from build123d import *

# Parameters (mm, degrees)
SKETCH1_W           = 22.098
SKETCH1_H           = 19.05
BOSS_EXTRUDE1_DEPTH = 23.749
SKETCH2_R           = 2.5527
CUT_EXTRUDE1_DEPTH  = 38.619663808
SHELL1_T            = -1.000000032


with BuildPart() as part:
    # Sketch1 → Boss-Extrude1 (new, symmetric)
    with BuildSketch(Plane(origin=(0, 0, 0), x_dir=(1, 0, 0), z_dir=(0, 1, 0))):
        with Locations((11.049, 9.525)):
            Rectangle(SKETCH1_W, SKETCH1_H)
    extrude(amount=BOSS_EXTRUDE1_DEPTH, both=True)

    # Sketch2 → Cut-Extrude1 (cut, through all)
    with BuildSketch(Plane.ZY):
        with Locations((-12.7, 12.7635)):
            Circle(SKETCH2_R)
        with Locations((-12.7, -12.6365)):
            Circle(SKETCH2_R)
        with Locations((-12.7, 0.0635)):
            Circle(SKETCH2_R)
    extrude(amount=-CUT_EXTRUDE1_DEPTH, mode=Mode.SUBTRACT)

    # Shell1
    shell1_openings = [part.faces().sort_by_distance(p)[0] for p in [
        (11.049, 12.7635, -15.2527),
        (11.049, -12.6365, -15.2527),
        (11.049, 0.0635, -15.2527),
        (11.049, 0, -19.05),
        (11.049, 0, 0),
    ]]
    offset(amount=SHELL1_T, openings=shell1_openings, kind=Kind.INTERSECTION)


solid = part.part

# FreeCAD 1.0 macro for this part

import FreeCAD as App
import Part
import Sketcher
from FreeCAD import Vector
Q = App.Units.Quantity


def faces_at(feature, points):
    """Names of the faces that lie closest to the given points."""
    faces = feature.Shape.Faces
    near = lambda p: min(range(len(faces)), key=lambda i: faces[i].distToShape(Part.Vertex(*p))[0])
    return sorted({f"Face{near(p) + 1}" for p in points})


def add_polygon(sketch, points):
    """Adds a closed chain of lines whose ends are joined by coincident constraints."""
    first, n = sketch.GeometryCount, len(points)
    for a, b in zip(points, points[1:] + points[:1]):
        sketch.addGeometry(Part.LineSegment(App.Vector(*a, 0), App.Vector(*b, 0)), False)
    for i in range(n):
        sketch.addConstraint(Sketcher.Constraint("Coincident", first + i, 2, first + (i + 1) % n, 1))

doc = App.newDocument("Part")
body = doc.addObject("PartDesign::Body", "Body")

# Sketch on XZ plane
sketch1 = body.newObject("Sketcher::SketchObject", "Sketch")
sketch1.AttachmentSupport = (doc.getObject("XZ_Plane"), [""])
sketch1.MapMode = "FlatFace"
add_polygon(sketch1, [(0, -19.05), (0, 0), (22.098, 0), (22.098, -19.05)])  # lines 0-3
sketch1.addConstraint([
    Sketcher.Constraint("Vertical", 0),
    Sketcher.Constraint("Horizontal", 1),
    Sketcher.Constraint("Vertical", 2),
    Sketcher.Constraint("Horizontal", 3),
    Sketcher.Constraint("Coincident", 0, 2, -1, 1),
    Sketcher.Constraint("DistanceX", 1, 1, 1, 2, Q("0.87 in")),
    Sketcher.Constraint("DistanceY", 0, 1, 0, 2, Q("0.75 in")),
])
pad1 = body.newObject("PartDesign::Pad", "Pad")
pad1.Profile = sketch1
pad1.Length = Q("1.87 in")
pad1.Midplane = True

# Sketch on YZ plane
sketch2 = body.newObject("Sketcher::SketchObject", "Sketch001")
sketch2.AttachmentSupport = (doc.getObject("YZ_Plane"), [""])
sketch2.MapMode = "FlatFace"
sketch2.addGeometry([
    Part.Circle(Vector(12.7635, -12.7, 0), Vector(0, 0, 1), 2.5527),
    Part.Circle(Vector(-12.6365, -12.7, 0), Vector(0, 0, 1), 2.5527),
    Part.Circle(Vector(0.0635, -12.7, 0), Vector(0, 0, 1), 2.5527),
], False)
sketch2.addConstraint([
    Sketcher.Constraint("Equal", 0, 1),
    Sketcher.Constraint("Equal", 1, 2),
    Sketcher.Constraint("Horizontal", 0, 3, 1, 3),
    Sketcher.Constraint("Horizontal", 1, 3, 2, 3),
    Sketcher.Constraint("Diameter", 0, Q("0.201 in")),
    Sketcher.Constraint("DistanceX", 1, 3, 0, 3, Q("1 in")),
    Sketcher.Constraint("DistanceY", 0, 3, -1, 1, Q("0.5 in")),
    Sketcher.Constraint("DistanceX", 1, 3, 2, 3, Q("0.5 in")),
    Sketcher.Constraint("DistanceX", -1, 1, 0, 3, Q("0.5025 in")),
])
pocket1 = body.newObject("PartDesign::Pocket", "Pocket")
pocket1.Profile = sketch2
pocket1.Type = "ThroughAll"
pocket1.Reversed = True
doc.recompute()

thickness = body.newObject("PartDesign::Thickness", "Thickness")
thickness.Base = (pocket1, faces_at(pocket1, [
    (11.049, 12.764, -15.253),
    (11.049, -12.636, -15.253),
    (11.049, 0.064, -15.253),
    (11.049, 0, -19.05),
    (11.049, 0, 0),
]))
thickness.Value = 1
thickness.Reversed = True
thickness.Join = "Intersection"

doc.recompute()
